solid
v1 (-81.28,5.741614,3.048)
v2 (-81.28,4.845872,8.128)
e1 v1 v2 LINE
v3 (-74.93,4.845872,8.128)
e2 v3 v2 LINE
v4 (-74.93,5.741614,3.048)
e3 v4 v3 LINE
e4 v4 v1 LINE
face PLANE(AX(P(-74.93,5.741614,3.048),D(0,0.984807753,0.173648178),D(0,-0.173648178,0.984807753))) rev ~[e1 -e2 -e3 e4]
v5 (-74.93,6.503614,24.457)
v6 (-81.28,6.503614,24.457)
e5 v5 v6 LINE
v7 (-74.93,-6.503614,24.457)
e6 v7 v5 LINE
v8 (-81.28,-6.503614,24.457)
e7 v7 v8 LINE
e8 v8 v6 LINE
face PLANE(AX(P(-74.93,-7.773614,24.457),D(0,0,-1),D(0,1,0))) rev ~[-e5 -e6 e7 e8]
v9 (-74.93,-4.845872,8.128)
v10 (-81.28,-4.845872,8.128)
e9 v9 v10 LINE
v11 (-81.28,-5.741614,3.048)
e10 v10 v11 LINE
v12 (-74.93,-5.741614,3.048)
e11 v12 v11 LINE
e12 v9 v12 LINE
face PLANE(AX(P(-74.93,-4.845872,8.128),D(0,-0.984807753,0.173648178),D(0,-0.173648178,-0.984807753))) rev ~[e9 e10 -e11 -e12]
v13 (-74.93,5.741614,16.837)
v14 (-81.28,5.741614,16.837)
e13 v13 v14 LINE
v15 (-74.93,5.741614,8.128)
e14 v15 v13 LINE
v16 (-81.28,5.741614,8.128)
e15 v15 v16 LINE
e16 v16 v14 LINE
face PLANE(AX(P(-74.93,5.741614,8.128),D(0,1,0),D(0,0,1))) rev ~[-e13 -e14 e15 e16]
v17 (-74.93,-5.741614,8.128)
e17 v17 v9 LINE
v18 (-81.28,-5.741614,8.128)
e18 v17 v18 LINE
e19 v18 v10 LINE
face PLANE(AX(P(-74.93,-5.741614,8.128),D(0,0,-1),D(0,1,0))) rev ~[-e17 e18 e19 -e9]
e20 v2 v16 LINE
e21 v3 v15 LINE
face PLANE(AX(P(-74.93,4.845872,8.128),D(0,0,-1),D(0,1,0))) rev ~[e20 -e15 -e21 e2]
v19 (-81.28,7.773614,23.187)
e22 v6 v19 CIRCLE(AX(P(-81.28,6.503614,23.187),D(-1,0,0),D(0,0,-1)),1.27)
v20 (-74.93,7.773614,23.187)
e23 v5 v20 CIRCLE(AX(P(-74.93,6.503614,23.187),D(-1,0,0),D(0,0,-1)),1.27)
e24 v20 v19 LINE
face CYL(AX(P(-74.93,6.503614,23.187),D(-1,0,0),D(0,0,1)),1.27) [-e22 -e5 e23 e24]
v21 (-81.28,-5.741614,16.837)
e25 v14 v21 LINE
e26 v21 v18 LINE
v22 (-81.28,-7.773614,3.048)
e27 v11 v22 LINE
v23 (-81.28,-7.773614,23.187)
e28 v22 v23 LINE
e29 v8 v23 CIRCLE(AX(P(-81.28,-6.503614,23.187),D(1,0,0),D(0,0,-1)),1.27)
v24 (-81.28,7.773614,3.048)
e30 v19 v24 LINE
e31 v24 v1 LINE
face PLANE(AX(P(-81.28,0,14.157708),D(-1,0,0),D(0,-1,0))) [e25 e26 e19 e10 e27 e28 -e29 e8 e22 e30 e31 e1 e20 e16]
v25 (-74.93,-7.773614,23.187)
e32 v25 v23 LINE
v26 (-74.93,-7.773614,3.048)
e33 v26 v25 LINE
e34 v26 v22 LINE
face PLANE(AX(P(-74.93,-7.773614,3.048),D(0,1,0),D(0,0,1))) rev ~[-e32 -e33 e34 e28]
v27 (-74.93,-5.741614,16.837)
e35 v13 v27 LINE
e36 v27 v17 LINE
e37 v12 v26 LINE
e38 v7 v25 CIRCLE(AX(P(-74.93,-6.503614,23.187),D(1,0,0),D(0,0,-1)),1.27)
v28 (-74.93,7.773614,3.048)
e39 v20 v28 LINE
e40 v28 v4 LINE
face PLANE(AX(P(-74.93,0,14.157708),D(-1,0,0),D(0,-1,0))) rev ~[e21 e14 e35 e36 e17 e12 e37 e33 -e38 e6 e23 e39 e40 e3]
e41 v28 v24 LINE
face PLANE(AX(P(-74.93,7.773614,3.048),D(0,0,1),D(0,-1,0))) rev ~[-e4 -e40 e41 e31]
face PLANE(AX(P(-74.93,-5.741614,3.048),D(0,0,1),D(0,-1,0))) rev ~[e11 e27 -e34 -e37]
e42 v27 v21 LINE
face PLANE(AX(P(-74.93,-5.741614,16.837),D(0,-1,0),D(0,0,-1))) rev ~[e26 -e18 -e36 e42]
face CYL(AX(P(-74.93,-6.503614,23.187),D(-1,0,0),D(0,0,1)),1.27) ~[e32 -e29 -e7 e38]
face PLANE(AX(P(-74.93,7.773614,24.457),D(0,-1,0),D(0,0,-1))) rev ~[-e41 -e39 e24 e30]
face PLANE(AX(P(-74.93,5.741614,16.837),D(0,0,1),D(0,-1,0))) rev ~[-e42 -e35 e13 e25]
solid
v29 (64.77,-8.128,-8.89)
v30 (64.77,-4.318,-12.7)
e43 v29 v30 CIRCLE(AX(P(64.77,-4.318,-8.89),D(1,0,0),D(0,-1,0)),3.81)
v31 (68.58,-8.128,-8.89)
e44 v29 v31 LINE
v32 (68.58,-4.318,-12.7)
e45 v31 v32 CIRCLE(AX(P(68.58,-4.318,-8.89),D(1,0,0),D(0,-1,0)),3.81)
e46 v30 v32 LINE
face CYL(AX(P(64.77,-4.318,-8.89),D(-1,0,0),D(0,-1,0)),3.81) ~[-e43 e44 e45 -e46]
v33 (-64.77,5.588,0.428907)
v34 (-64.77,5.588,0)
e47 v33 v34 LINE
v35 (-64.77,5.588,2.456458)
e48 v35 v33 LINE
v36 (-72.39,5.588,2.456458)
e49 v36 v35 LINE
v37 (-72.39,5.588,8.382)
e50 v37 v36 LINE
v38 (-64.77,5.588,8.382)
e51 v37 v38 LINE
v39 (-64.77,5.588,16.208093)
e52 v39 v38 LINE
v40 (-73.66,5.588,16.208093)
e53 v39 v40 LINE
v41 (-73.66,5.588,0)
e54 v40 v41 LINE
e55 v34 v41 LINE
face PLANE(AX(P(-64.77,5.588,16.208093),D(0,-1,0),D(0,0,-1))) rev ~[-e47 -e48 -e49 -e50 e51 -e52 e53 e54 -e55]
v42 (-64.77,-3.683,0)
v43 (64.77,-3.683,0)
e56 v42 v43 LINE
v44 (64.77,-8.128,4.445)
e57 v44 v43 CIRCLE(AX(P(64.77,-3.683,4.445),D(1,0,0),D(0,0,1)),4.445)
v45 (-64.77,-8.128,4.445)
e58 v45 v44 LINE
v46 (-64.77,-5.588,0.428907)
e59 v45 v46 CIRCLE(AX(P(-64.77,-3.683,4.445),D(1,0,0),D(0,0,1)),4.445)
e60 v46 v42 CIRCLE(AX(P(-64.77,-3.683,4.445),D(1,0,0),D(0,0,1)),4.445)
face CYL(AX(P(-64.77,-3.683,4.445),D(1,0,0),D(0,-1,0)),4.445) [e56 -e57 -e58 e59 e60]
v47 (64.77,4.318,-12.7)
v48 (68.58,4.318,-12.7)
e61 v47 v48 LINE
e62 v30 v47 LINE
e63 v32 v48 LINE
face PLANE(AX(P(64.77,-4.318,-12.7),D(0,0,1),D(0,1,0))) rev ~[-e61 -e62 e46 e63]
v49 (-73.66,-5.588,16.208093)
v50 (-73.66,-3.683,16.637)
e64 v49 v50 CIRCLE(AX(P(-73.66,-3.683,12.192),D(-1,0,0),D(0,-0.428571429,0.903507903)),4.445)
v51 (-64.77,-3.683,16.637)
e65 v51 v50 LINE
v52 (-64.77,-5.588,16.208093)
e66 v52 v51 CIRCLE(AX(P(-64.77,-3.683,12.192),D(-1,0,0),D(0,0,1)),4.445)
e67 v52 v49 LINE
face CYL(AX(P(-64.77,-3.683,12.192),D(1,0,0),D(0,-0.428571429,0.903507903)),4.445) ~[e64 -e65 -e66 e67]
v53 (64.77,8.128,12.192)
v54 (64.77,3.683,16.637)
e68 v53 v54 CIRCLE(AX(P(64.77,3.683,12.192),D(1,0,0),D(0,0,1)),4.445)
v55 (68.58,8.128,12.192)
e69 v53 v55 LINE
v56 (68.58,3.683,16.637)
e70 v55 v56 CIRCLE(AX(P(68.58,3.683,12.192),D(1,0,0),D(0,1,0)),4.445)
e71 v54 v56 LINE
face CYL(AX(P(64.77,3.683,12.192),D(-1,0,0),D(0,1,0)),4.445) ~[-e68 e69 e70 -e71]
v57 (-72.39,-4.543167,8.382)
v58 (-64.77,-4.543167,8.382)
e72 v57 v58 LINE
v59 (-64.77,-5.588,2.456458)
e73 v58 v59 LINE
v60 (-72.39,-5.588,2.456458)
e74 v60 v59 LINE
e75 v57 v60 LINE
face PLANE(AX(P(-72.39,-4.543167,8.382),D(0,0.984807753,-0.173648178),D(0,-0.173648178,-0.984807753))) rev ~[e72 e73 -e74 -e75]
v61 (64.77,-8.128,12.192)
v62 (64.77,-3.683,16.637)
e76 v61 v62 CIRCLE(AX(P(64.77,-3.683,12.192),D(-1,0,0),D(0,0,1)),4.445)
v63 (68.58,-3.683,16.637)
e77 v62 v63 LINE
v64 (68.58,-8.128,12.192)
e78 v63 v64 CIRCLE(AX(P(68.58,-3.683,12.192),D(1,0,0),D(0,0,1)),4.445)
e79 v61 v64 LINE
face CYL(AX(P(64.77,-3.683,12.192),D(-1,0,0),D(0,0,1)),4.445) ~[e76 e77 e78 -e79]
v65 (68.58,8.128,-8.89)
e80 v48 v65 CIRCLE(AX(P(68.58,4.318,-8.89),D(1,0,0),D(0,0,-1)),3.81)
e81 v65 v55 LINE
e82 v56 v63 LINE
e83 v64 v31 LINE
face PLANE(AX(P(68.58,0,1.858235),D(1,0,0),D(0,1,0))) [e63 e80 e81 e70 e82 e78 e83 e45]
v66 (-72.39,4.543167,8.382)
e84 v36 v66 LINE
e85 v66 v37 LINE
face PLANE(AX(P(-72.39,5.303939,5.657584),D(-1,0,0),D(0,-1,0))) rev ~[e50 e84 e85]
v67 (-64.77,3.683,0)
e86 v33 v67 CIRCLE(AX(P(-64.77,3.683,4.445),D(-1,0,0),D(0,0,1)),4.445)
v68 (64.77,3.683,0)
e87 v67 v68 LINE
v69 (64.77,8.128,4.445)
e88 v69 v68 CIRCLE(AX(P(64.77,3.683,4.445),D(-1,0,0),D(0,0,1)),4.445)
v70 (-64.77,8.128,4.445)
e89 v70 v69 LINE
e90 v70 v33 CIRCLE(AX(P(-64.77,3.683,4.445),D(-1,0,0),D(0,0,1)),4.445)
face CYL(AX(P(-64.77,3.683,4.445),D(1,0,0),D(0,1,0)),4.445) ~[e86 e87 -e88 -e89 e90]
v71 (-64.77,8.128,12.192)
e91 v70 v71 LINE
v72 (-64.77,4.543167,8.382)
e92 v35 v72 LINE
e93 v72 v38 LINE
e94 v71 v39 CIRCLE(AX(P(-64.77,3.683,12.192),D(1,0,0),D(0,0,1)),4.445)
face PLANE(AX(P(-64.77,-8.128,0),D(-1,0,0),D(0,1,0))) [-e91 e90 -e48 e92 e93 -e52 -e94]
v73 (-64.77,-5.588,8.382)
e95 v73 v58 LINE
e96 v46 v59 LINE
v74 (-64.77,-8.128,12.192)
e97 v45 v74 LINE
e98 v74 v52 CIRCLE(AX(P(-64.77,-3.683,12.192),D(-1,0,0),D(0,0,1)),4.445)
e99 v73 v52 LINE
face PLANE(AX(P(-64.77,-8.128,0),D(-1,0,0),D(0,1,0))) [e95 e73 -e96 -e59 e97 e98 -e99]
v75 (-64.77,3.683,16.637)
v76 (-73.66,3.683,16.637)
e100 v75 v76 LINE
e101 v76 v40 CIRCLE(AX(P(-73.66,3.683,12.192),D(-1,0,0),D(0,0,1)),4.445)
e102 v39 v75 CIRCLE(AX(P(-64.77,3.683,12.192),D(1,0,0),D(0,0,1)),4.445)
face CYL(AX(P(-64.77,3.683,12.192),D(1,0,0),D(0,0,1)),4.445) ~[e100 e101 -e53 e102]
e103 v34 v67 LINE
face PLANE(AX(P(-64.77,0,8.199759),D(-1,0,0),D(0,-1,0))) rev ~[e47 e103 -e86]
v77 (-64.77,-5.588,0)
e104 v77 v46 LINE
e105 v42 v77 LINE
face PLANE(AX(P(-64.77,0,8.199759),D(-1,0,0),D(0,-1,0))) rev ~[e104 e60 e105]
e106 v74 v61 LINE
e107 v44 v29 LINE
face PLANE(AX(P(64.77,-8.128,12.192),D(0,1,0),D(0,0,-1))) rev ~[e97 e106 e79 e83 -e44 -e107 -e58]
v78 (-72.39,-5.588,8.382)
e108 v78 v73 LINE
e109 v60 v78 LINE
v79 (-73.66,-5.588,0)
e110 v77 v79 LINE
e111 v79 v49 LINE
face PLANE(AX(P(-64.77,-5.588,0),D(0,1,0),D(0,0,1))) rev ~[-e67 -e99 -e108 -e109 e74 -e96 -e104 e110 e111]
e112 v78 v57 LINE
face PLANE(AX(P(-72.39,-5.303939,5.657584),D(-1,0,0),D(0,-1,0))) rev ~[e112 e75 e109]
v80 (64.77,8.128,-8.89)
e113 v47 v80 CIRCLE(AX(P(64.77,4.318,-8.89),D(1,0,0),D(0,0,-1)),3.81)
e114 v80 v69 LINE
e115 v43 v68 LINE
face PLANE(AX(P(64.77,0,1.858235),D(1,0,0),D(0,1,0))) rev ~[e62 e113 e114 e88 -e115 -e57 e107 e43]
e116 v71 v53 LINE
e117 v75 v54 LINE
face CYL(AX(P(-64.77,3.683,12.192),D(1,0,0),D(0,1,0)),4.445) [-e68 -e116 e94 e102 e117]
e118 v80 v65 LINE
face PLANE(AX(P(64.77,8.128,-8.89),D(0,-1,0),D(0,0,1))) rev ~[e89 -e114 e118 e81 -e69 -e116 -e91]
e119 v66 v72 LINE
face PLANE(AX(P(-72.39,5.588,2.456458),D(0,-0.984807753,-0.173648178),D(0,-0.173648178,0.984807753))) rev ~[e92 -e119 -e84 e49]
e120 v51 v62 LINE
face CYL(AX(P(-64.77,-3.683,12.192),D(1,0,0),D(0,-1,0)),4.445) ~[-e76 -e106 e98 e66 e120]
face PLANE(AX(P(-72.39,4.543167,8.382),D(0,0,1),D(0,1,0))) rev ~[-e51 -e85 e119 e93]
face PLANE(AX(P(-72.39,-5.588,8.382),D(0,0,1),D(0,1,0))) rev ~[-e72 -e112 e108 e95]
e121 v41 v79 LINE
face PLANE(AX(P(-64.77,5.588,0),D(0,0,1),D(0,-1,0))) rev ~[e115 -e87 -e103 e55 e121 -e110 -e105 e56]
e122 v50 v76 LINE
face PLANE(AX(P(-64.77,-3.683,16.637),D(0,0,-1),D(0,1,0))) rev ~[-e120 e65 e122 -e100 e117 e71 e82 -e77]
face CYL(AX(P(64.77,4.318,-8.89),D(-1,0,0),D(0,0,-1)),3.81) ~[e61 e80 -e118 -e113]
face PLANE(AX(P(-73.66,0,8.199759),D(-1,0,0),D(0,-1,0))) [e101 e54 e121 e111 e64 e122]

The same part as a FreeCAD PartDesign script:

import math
import FreeCAD as App
import Part
import Sketcher
from FreeCAD import Vector
Q = App.Units.Quantity


def edges_at(feature, points):
    """Names of the edges that pass closest to the given points."""
    edges = feature.Shape.Edges
    near = lambda p: min(range(len(edges)), key=lambda i: edges[i].distToShape(Part.Vertex(*p))[0])
    return sorted({f"Edge{near(p) + 1}" for p in points})

doc = App.newDocument("Part")
params = doc.addObject("Spreadsheet::Sheet", "Params")
for row, (alias, value) in enumerate([
    ("sketch1_width", "5.1 in"),
    ("sketch1_height", "0.64 in"),
    ("pad1_length", "0.655 in"),
    ("fillet_radius", "0.175 in"),
    ("sketch2_radius", "0.15 in"),
    ("sketch2_radius2", "0.175 in"),
    ("sketch2_width", "0.29 in"),
    ("sketch2_height", "0.83 in"),
    ("pad2_length", "0.15 in"),
    ("sketch3_radius", "0.175 in"),
    ("sketch3_width", "0.29 in"),
    ("sketch3_width2", "0.44 in"),
    ("pad3_length", "0.35 in"),
    ("pocket1_length", "0.3 in"),
    ("sketch5_width", "0.08 in"),
    ("pad4_length", "0.25 in"),
    ("fillet2_radius", "0.05 in"),
], start=1):
    params.set(f"A{row}", alias)
    params.set(f"B{row}", "=" + value)
    params.setAlias(f"B{row}", alias)

body = doc.addObject("PartDesign::Body", "Body")

sketch1 = body.newObject("Sketcher::SketchObject", "Sketch")
sketch1.AttachmentSupport = (doc.getObject("XY_Plane"), [""])
sketch1.MapMode = "FlatFace"
sketch1.addGeometry([
    Part.LineSegment(Vector(-65, 8, 0), Vector(-65, -8, 0)),
    Part.LineSegment(Vector(-65, -8, 0), Vector(65, -8, 0)),
    Part.LineSegment(Vector(65, -8, 0), Vector(65, 8, 0)),
    Part.LineSegment(Vector(65, 8, 0), Vector(-65, 8, 0)),
], False)
sketch1.addConstraint([
    Sketcher.Constraint("Coincident", 0, 2, 1, 1),
    Sketcher.Constraint("Coincident", 1, 2, 2, 1),
    Sketcher.Constraint("Coincident", 2, 2, 3, 1),
    Sketcher.Constraint("Coincident", 3, 2, 0, 1),
    Sketcher.Constraint("Vertical", 0),
    Sketcher.Constraint("Horizontal", 1),
    Sketcher.Constraint("Vertical", 2),
    Sketcher.Constraint("Horizontal", 3),
    Sketcher.Constraint("Symmetric", 0, 2, 2, 2, -1, 1),
    Sketcher.Constraint("DistanceX", 1, 1, 1, 2, Q("5.1 in")),
    Sketcher.Constraint("DistanceY", 0, 2, 0, 1, Q("0.64 in")),
])
sketch1.setExpression("Constraints[9]", "Params.sketch1_width")
sketch1.setExpression("Constraints[10]", "Params.sketch1_height")
pad1 = body.newObject("PartDesign::Pad", "Pad")
pad1.Profile = sketch1
pad1.setExpression("Length", "Params.pad1_length")
doc.recompute()

fillet = body.newObject("PartDesign::Fillet", "Fillet")
fillet.Base = (pad1, edges_at(pad1, [
    (0, -8.128, 16.637),
    (0, 8.128, 16.637),
    (0, -8.128, 0),
    (0, 8.128, 0),
]))
fillet.setExpression("Radius", "Params.fillet_radius")

sketch2 = body.newObject("Sketcher::SketchObject", "Sketch001")
sketch2.AttachmentSupport = (doc.getObject("YZ_Plane"), [""])
sketch2.MapMode = "FlatFace"
sketch2.AttachmentOffset = App.Placement(Vector(0, 0, 2.55 * 25.4), App.Rotation())
sketch2.addGeometry([
    Part.LineSegment(Vector(3.7, 16.6, 0), Vector(-3.7, 16.6, 0)),
    Part.ArcOfCircle(Part.Circle(Vector(-3.7, 12.2, 0), Vector(0, 0, 1), 4.4), math.radians(90), math.radians(180)),
    Part.LineSegment(Vector(-8.1, 12.2, 0), Vector(-8.1, -8.9, 0)),
    Part.ArcOfCircle(Part.Circle(Vector(-4.3, -8.9, 0), Vector(0, 0, 1), 3.8), math.radians(180), math.radians(270)),
    Part.LineSegment(Vector(-4.3, -12.7, 0), Vector(4.3, -12.7, 0)),
    Part.ArcOfCircle(Part.Circle(Vector(4.3, -8.9, 0), Vector(0, 0, 1), 3.8), math.radians(-90), math.radians(0)),
    Part.LineSegment(Vector(8.1, -8.9, 0), Vector(8.1, 12.2, 0)),
    Part.ArcOfCircle(Part.Circle(Vector(3.7, 12.2, 0), Vector(0, 0, 1), 4.4), math.radians(0), math.radians(90)),
], False)
sketch2.addConstraint([
    Sketcher.Constraint("Tangent", 0, 2, 1, 1),
    Sketcher.Constraint("Tangent", 1, 2, 2, 1),
    Sketcher.Constraint("Tangent", 2, 2, 3, 1),
    Sketcher.Constraint("Tangent", 3, 2, 4, 1),
    Sketcher.Constraint("Tangent", 4, 2, 5, 1),
    Sketcher.Constraint("Tangent", 5, 2, 6, 1),
    Sketcher.Constraint("Tangent", 6, 2, 7, 1),
    Sketcher.Constraint("Tangent", 7, 2, 0, 1),
    Sketcher.Constraint("Horizontal", 0),
    Sketcher.Constraint("Vertical", 2),
    Sketcher.Constraint("Horizontal", 4),
    Sketcher.Constraint("Vertical", 6),
    Sketcher.Constraint("Equal", 3, 5),
    Sketcher.Constraint("Equal", 1, 7),
    Sketcher.Constraint("Radius", 3, Q("0.15 in")),
    Sketcher.Constraint("Radius", 1, Q("0.175 in")),
    Sketcher.Constraint("DistanceX", 0, 2, 0, 1, Q("0.29 in")),
    Sketcher.Constraint("DistanceY", 2, 2, 2, 1, Q("0.83 in")),
    Sketcher.Constraint("DistanceY", 3, 2, -1, 1, Q("0.5 in")),
    Sketcher.Constraint("DistanceX", 3, 3, -1, 1, Q("0.17 in")),
])
sketch2.setExpression("Constraints[14]", "Params.sketch2_radius")
sketch2.setExpression("Constraints[15]", "Params.sketch2_radius2")
sketch2.setExpression("Constraints[16]", "Params.sketch2_width")
sketch2.setExpression("Constraints[17]", "Params.sketch2_height")
pad2 = body.newObject("PartDesign::Pad", "Pad001")
pad2.Profile = sketch2
pad2.setExpression("Length", "Params.pad2_length")

sketch3 = body.newObject("Sketcher::SketchObject", "Sketch002")
sketch3.AttachmentSupport = (doc.getObject("YZ_Plane"), [""])
sketch3.MapMode = "FlatFace"
sketch3.AttachmentOffset = App.Placement(Vector(0, 0, -2.55 * 25.4), App.Rotation())
sketch3.addGeometry([
    Part.LineSegment(Vector(-3.7, 16.6, 0), Vector(3.7, 16.6, 0)),
    Part.ArcOfCircle(Part.Circle(Vector(3.7, 12.2, 0), Vector(0, 0, 1), 4.4), math.radians(65), math.radians(90)),
    Part.LineSegment(Vector(5.6, 16.2, 0), Vector(5.6, 0, 0)),
    Part.LineSegment(Vector(5.6, 0, 0), Vector(-5.6, 0, 0)),
    Part.LineSegment(Vector(-5.6, 0, 0), Vector(-5.6, 16.2, 0)),
    Part.ArcOfCircle(Part.Circle(Vector(-3.7, 12.2, 0), Vector(0, 0, 1), 4.4), math.radians(90), math.radians(115)),
], False)
sketch3.addConstraint([
    Sketcher.Constraint("Tangent", 0, 2, 1, 2),
    Sketcher.Constraint("Coincident", 1, 1, 2, 1),
    Sketcher.Constraint("Coincident", 2, 2, 3, 1),
    Sketcher.Constraint("Coincident", 3, 2, 4, 1),
    Sketcher.Constraint("Coincident", 4, 2, 5, 2),
    Sketcher.Constraint("Tangent", 5, 1, 0, 1),
    Sketcher.Constraint("Horizontal", 0),
    Sketcher.Constraint("Vertical", 2),
    Sketcher.Constraint("Horizontal", 3),
    Sketcher.Constraint("Vertical", 4),
    Sketcher.Constraint("Equal", 1, 5),
    Sketcher.Constraint("Symmetric", 2, 2, 3, 2, -1, 1),
    Sketcher.Constraint("Horizontal", 1, 1, 4, 2),
    Sketcher.Constraint("Radius", 1, Q("0.175 in")),
    Sketcher.Constraint("DistanceX", 0, 1, 0, 2, Q("0.29 in")),
    Sketcher.Constraint("DistanceX", 3, 2, 3, 1, Q("0.44 in")),
    Sketcher.Constraint("DistanceY", -1, 1, 1, 3, Q("0.48 in")),
])
sketch3.setExpression("Constraints[13]", "Params.sketch3_radius")
sketch3.setExpression("Constraints[14]", "Params.sketch3_width")
sketch3.setExpression("Constraints[15]", "Params.sketch3_width2")
pad3 = body.newObject("PartDesign::Pad", "Pad002")
pad3.Profile = sketch3
pad3.setExpression("Length", "Params.pad3_length")
pad3.Reversed = True

sketch4 = body.newObject("Sketcher::SketchObject", "Sketch003")
sketch4.AttachmentSupport = (doc.getObject("YZ_Plane"), [""])
sketch4.MapMode = "FlatFace"
sketch4.AttachmentOffset = App.Placement(Vector(0, 0, -2.85 * 25.4), App.Rotation())
sketch4.addGeometry([
    Part.LineSegment(Vector(5.6, 2.5, 0), Vector(4.5, 8.4, 0)),
    Part.LineSegment(Vector(4.5, 8.4, 0), Vector(5.6, 8.4, 0)),
    Part.LineSegment(Vector(5.6, 8.4, 0), Vector(5.6, 2.5, 0)),
    Part.LineSegment(Vector(-5.6, 8.4, 0), Vector(-4.5, 8.4, 0)),
    Part.LineSegment(Vector(-4.5, 8.4, 0), Vector(-5.6, 2.5, 0)),
    Part.LineSegment(Vector(-5.6, 2.5, 0), Vector(-5.6, 8.4, 0)),
], False)
sketch4.addConstraint([
    Sketcher.Constraint("Coincident", 0, 2, 1, 1),
    Sketcher.Constraint("Coincident", 1, 2, 2, 1),
    Sketcher.Constraint("Coincident", 2, 2, 0, 1),
    Sketcher.Constraint("Coincident", 3, 2, 4, 1),
    Sketcher.Constraint("Coincident", 4, 2, 5, 1),
    Sketcher.Constraint("Coincident", 5, 2, 3, 1),
    Sketcher.Constraint("Horizontal", 1),
    Sketcher.Constraint("Vertical", 2),
    Sketcher.Constraint("Horizontal", 3),
    Sketcher.Constraint("Vertical", 5),
    Sketcher.Constraint("Symmetric", 0, 2, 3, 2, -2),
    Sketcher.Constraint("Symmetric", 2, 2, 4, 2, -2),
    Sketcher.Constraint("Angle", 0, Q("100 deg")),
    Sketcher.Constraint("DistanceY", -1, 1, 0, 2, Q("0.33 in")),
    Sketcher.Constraint("DistanceX", -1, 1, 1, 2, Q("0.22 in")),
    Sketcher.Constraint("DistanceX", 1, 1, 1, 2, Q("1.044833 mm")),
])
pocket1 = body.newObject("PartDesign::Pocket", "Pocket")
pocket1.Profile = sketch4
pocket1.setExpression("Length", "Params.pocket1_length")
pocket1.Reversed = True
body2 = doc.addObject("PartDesign::Body", "Body001")

sketch5 = body2.newObject("Sketcher::SketchObject", "Sketch004")
sketch5.AttachmentSupport = (doc.getObject("YZ_Plane001"), [""])
sketch5.MapMode = "FlatFace"
sketch5.AttachmentOffset = App.Placement(Vector(0, 0, -2.95 * 25.4), App.Rotation())
sketch5.addGeometry([
    Part.LineSegment(Vector(-7.8, 24.5, 0), Vector(7.8, 24.5, 0)),
    Part.LineSegment(Vector(7.8, 24.5, 0), Vector(7.8, 3, 0)),
    Part.LineSegment(Vector(7.8, 3, 0), Vector(5.7, 3, 0)),
    Part.LineSegment(Vector(5.7, 3, 0), Vector(4.8, 8.1, 0)),
    Part.LineSegment(Vector(4.8, 8.1, 0), Vector(5.7, 8.1, 0)),
    Part.LineSegment(Vector(5.7, 8.1, 0), Vector(5.7, 16.8, 0)),
    Part.LineSegment(Vector(5.7, 16.8, 0), Vector(-5.7, 16.8, 0)),
    Part.LineSegment(Vector(-5.7, 16.8, 0), Vector(-5.7, 8.1, 0)),
    Part.LineSegment(Vector(-5.7, 8.1, 0), Vector(-4.8, 8.1, 0)),
    Part.LineSegment(Vector(-4.8, 8.1, 0), Vector(-5.7, 3, 0)),
    Part.LineSegment(Vector(-5.7, 3, 0), Vector(-7.8, 3, 0)),
    Part.LineSegment(Vector(-7.8, 3, 0), Vector(-7.8, 24.5, 0)),
], False)
sketch5.addConstraint([
    Sketcher.Constraint("Coincident", 0, 2, 1, 1),
    Sketcher.Constraint("Coincident", 1, 2, 2, 1),
    Sketcher.Constraint("Coincident", 2, 2, 3, 1),
    Sketcher.Constraint("Coincident", 3, 2, 4, 1),
    Sketcher.Constraint("Coincident", 4, 2, 5, 1),
    Sketcher.Constraint("Coincident", 5, 2, 6, 1),
    Sketcher.Constraint("Coincident", 6, 2, 7, 1),
    Sketcher.Constraint("Coincident", 7, 2, 8, 1),
    Sketcher.Constraint("Coincident", 8, 2, 9, 1),
    Sketcher.Constraint("Coincident", 9, 2, 10, 1),
    Sketcher.Constraint("Coincident", 10, 2, 11, 1),
    Sketcher.Constraint("Coincident", 11, 2, 0, 1),
    Sketcher.Constraint("Horizontal", 0),
    Sketcher.Constraint("Vertical", 1),
    Sketcher.Constraint("Horizontal", 2),
    Sketcher.Constraint("Horizontal", 4),
    Sketcher.Constraint("Vertical", 5),
    Sketcher.Constraint("Horizontal", 6),
    Sketcher.Constraint("Vertical", 7),
    Sketcher.Constraint("Horizontal", 8),
    Sketcher.Constraint("Horizontal", 10),
    Sketcher.Constraint("Vertical", 11),
    Sketcher.Constraint("Symmetric", 4, 2, 7, 2, -2),
    Sketcher.Constraint("Symmetric", 2, 2, 9, 2, -2),
    Sketcher.Constraint("Vertical", 2, 2, 4, 2),
    Sketcher.Constraint("Equal", 4, 8),
    Sketcher.Constraint("Equal", 2, 10),
    Sketcher.Constraint("Angle", 3, Q("100 deg")),
    Sketcher.Constraint("DistanceX", 2, 2, 2, 1, Q("0.08 in")),
    Sketcher.Constraint("DistanceY", 2, 2, 3, 2, Q("0.2 in")),
    Sketcher.Constraint("DistanceY", 5, 2, 0, 2, Q("0.3 in")),
    Sketcher.Constraint("DistanceY", -1, 1, 1, 2, Q("0.12 in")),
    Sketcher.Constraint("DistanceY", 1, 2, 1, 1, Q("21.409 mm")),
    Sketcher.Constraint("DistanceX", 0, 1, 0, 2, Q("15.547227 mm")),
])
sketch5.setExpression("Constraints[28]", "Params.sketch5_width")
pad4 = body2.newObject("PartDesign::Pad", "Pad003")
pad4.Profile = sketch5
pad4.setExpression("Length", "Params.pad4_length")
pad4.Reversed = True
doc.recompute()

fillet2 = body2.newObject("PartDesign::Fillet", "Fillet001")
fillet2.Base = (pad4, edges_at(pad4, [(-78.105, 7.774, 24.457), (-78.105, -7.774, 24.457)]))
fillet2.setExpression("Radius", "Params.fillet2_radius")

doc.recompute()
